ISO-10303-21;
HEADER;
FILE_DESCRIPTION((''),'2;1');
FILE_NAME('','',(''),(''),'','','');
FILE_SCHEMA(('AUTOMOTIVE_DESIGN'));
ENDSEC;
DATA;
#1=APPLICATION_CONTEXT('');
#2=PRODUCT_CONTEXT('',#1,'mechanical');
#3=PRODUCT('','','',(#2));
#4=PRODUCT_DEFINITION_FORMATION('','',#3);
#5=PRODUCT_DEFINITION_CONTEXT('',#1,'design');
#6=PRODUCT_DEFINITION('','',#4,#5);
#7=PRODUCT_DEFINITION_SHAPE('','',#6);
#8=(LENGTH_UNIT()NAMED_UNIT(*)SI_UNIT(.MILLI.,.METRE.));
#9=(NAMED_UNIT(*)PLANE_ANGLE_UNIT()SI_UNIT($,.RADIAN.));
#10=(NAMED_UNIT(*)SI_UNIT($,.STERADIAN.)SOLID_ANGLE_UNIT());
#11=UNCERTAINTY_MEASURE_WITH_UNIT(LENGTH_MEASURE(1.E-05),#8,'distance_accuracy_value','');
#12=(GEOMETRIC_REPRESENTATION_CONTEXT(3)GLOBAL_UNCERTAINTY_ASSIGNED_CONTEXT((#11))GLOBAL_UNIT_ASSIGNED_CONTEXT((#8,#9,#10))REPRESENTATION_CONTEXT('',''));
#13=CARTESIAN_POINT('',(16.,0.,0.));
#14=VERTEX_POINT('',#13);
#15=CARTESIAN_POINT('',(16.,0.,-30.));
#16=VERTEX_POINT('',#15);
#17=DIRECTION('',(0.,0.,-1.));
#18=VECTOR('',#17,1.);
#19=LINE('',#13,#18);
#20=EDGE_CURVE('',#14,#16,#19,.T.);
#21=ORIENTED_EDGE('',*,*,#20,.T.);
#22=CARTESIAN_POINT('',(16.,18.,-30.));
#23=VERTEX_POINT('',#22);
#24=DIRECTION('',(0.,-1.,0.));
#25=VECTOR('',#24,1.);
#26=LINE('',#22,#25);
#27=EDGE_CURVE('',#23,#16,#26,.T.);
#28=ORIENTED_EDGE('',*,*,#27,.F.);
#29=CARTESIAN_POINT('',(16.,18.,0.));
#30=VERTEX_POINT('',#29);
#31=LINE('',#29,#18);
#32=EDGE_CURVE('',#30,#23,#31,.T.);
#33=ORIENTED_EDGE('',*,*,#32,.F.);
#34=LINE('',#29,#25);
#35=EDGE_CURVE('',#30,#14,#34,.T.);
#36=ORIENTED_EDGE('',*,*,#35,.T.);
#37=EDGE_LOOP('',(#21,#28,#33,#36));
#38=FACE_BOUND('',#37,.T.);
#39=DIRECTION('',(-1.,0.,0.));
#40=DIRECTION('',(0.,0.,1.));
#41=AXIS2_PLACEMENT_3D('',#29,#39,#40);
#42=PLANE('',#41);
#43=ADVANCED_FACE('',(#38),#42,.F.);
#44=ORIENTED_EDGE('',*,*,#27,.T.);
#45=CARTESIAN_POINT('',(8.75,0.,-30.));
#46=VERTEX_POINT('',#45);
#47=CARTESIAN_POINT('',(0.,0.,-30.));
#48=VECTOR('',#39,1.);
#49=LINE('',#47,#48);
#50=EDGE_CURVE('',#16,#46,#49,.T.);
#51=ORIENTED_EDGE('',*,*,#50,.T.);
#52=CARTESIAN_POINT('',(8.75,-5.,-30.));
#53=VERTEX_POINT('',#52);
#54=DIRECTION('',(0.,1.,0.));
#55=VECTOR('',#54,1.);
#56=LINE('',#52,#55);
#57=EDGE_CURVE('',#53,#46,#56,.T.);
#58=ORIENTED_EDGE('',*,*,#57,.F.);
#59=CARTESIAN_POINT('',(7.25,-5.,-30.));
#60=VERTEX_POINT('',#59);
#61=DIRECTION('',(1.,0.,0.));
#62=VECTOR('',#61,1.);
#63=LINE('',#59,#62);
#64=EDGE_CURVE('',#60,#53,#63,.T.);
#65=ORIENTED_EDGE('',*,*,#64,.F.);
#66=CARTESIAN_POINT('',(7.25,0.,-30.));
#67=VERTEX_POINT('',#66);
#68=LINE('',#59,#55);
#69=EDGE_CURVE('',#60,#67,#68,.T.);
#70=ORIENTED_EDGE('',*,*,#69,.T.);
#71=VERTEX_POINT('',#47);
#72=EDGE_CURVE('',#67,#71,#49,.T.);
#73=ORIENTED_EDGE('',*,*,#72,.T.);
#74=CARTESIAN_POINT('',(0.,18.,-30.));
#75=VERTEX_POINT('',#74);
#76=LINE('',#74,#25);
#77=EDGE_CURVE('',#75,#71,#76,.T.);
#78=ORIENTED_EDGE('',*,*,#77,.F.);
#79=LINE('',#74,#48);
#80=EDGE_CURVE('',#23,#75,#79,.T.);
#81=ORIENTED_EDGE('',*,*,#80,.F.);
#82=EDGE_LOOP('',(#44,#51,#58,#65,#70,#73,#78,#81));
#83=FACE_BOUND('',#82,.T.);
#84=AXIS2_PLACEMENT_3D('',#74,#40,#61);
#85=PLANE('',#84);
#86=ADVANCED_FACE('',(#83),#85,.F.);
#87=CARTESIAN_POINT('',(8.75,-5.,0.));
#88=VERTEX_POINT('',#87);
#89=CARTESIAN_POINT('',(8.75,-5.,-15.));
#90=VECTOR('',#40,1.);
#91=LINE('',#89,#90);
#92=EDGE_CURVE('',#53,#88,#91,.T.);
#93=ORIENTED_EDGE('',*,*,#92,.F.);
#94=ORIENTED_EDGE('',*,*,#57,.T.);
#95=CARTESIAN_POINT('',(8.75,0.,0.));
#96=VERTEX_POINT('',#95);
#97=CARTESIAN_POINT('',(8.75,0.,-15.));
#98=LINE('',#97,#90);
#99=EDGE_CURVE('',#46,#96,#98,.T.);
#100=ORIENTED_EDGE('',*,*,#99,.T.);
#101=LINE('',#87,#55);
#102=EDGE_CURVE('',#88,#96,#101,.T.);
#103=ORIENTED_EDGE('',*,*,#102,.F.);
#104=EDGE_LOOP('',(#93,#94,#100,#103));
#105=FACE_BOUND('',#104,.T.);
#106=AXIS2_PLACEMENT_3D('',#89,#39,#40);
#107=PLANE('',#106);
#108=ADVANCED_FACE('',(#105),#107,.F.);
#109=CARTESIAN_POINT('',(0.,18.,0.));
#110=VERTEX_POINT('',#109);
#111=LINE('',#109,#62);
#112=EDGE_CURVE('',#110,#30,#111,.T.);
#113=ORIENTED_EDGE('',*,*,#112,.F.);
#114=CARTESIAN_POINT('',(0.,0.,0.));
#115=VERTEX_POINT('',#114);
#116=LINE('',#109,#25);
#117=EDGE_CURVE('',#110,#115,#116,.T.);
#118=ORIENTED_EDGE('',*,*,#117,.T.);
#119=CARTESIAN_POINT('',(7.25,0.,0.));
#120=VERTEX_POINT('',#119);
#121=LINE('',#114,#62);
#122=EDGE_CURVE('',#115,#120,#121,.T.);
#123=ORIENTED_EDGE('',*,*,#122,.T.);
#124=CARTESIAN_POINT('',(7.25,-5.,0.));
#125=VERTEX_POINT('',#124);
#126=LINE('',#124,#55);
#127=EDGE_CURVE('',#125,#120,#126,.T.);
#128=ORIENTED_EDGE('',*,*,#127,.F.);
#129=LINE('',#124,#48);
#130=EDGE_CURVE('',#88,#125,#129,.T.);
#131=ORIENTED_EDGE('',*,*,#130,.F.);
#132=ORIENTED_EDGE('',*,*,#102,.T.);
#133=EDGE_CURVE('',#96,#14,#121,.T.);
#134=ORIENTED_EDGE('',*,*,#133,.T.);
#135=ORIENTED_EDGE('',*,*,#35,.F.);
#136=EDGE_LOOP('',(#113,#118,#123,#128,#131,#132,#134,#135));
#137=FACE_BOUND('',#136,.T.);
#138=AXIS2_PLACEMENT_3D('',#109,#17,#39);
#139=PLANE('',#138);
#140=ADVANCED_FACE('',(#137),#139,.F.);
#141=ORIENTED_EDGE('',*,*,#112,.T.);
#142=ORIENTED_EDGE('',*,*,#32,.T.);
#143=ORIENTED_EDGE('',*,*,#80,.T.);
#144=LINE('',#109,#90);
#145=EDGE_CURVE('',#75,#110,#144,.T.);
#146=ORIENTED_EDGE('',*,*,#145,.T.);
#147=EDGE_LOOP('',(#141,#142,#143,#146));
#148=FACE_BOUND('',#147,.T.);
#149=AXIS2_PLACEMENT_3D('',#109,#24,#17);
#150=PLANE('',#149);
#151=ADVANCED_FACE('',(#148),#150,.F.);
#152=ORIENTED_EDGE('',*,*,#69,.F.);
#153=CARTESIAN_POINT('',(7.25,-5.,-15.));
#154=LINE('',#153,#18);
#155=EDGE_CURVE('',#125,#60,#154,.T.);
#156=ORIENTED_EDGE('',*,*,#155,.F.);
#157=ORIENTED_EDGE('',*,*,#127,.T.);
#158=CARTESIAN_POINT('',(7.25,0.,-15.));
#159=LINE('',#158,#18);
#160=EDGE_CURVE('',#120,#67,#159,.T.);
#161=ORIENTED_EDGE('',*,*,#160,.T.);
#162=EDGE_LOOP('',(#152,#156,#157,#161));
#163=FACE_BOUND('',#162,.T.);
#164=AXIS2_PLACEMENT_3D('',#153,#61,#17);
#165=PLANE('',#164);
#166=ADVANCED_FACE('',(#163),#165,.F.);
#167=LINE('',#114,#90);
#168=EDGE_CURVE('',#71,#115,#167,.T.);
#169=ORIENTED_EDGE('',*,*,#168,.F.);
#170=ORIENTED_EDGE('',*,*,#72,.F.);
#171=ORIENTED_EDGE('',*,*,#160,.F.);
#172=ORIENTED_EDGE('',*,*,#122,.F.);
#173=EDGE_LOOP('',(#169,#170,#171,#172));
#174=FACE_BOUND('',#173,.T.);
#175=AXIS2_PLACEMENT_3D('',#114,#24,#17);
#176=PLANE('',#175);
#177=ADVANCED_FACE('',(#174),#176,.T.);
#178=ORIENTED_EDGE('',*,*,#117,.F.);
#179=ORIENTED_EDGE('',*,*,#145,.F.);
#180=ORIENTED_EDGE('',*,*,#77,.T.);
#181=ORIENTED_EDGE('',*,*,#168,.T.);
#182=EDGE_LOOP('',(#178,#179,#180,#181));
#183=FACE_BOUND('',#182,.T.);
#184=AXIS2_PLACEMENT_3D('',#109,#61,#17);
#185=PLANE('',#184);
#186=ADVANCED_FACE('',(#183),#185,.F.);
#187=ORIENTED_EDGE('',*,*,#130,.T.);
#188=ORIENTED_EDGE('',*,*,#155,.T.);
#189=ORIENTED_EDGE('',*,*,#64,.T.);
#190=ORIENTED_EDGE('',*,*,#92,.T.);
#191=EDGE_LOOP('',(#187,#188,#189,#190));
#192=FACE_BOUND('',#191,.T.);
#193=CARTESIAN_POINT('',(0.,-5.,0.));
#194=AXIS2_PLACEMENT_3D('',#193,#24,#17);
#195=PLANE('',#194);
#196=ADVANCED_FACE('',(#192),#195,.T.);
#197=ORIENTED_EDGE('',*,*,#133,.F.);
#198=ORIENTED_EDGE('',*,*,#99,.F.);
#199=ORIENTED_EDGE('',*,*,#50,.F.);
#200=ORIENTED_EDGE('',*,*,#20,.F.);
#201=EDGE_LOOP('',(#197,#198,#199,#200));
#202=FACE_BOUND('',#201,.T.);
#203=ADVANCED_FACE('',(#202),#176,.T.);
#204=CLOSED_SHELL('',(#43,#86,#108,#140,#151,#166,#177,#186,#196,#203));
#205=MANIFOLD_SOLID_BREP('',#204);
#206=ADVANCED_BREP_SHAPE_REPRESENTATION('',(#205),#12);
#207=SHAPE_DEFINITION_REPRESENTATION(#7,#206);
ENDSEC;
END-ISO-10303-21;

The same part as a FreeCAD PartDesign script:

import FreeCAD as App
import Part
import Sketcher
Q = App.Units.Quantity

doc = App.newDocument("Part")
body = doc.addObject("PartDesign::Body", "Body")

# Sketch on XZ plane
sketch1 = doc.addObject("Sketcher::SketchObject", "Sketch")
body.addObject(sketch1)
sketch1.AttachmentSupport = (doc.XZ_Plane, [""])
sketch1.MapMode = "FlatFace"
sketch1.addGeometry([
    Part.LineSegment(App.Vector(0, -30, 0), App.Vector(0, 0, 0)),
    Part.LineSegment(App.Vector(0, 0, 0), App.Vector(16, 0, 0)),
    Part.LineSegment(App.Vector(16, 0, 0), App.Vector(16, -30, 0)),
    Part.LineSegment(App.Vector(16, -30, 0), App.Vector(0, -30, 0)),
], False)
sketch1.addConstraint([
    Sketcher.Constraint("Coincident", 0, 2, 1, 1),
    Sketcher.Constraint("Coincident", 1, 2, 2, 1),
    Sketcher.Constraint("Coincident", 2, 2, 3, 1),
    Sketcher.Constraint("Coincident", 3, 2, 0, 1),
    Sketcher.Constraint("Vertical", 0),
    Sketcher.Constraint("Horizontal", 1),
    Sketcher.Constraint("Vertical", 2),
    Sketcher.Constraint("Horizontal", 3),
    Sketcher.Constraint("Coincident", 0, 2, -1, 1),
    Sketcher.Constraint("DistanceX", 1, 1, 1, 2, Q("16 mm")),
    Sketcher.Constraint("DistanceY", 0, 1, 0, 2, Q("30 mm")),
])
pad1 = doc.addObject("PartDesign::Pad", "Pad")
body.addObject(pad1)
pad1.Profile = sketch1
pad1.Length = 18
pad1.Reversed = True

# Sketch on XZ plane
sketch2 = doc.addObject("Sketcher::SketchObject", "Sketch001")
body.addObject(sketch2)
sketch2.AttachmentSupport = (doc.XZ_Plane, [""])
sketch2.MapMode = "FlatFace"
sketch2.addGeometry([
    Part.LineSegment(App.Vector(7.2, 0, 0), App.Vector(7.2, -30, 0)),
    Part.LineSegment(App.Vector(7.2, -30, 0), App.Vector(8.8, -30, 0)),
    Part.LineSegment(App.Vector(8.8, -30, 0), App.Vector(8.8, 0, 0)),
    Part.LineSegment(App.Vector(8.8, 0, 0), App.Vector(7.2, 0, 0)),
], False)
sketch2.addConstraint([
    Sketcher.Constraint("Coincident", 0, 2, 1, 1),
    Sketcher.Constraint("Coincident", 1, 2, 2, 1),
    Sketcher.Constraint("Coincident", 2, 2, 3, 1),
    Sketcher.Constraint("Coincident", 3, 2, 0, 1),
    Sketcher.Constraint("Vertical", 0),
    Sketcher.Constraint("Horizontal", 1),
    Sketcher.Constraint("Vertical", 2),
    Sketcher.Constraint("Horizontal", 3),
    Sketcher.Constraint("PointOnObject", 2, 2, -1),
    Sketcher.Constraint("DistanceY", 0, 2, 0, 1, Q("30 mm")),
    Sketcher.Constraint("DistanceX", 1, 1, 1, 2, Q("1.5 mm")),
    Sketcher.Constraint("DistanceX", -1, 1, 0, 2, Q("7.25 mm")),
])
pad2 = doc.addObject("PartDesign::Pad", "Pad001")
body.addObject(pad2)
pad2.Profile = sketch2
pad2.Length = 5

doc.recompute()
